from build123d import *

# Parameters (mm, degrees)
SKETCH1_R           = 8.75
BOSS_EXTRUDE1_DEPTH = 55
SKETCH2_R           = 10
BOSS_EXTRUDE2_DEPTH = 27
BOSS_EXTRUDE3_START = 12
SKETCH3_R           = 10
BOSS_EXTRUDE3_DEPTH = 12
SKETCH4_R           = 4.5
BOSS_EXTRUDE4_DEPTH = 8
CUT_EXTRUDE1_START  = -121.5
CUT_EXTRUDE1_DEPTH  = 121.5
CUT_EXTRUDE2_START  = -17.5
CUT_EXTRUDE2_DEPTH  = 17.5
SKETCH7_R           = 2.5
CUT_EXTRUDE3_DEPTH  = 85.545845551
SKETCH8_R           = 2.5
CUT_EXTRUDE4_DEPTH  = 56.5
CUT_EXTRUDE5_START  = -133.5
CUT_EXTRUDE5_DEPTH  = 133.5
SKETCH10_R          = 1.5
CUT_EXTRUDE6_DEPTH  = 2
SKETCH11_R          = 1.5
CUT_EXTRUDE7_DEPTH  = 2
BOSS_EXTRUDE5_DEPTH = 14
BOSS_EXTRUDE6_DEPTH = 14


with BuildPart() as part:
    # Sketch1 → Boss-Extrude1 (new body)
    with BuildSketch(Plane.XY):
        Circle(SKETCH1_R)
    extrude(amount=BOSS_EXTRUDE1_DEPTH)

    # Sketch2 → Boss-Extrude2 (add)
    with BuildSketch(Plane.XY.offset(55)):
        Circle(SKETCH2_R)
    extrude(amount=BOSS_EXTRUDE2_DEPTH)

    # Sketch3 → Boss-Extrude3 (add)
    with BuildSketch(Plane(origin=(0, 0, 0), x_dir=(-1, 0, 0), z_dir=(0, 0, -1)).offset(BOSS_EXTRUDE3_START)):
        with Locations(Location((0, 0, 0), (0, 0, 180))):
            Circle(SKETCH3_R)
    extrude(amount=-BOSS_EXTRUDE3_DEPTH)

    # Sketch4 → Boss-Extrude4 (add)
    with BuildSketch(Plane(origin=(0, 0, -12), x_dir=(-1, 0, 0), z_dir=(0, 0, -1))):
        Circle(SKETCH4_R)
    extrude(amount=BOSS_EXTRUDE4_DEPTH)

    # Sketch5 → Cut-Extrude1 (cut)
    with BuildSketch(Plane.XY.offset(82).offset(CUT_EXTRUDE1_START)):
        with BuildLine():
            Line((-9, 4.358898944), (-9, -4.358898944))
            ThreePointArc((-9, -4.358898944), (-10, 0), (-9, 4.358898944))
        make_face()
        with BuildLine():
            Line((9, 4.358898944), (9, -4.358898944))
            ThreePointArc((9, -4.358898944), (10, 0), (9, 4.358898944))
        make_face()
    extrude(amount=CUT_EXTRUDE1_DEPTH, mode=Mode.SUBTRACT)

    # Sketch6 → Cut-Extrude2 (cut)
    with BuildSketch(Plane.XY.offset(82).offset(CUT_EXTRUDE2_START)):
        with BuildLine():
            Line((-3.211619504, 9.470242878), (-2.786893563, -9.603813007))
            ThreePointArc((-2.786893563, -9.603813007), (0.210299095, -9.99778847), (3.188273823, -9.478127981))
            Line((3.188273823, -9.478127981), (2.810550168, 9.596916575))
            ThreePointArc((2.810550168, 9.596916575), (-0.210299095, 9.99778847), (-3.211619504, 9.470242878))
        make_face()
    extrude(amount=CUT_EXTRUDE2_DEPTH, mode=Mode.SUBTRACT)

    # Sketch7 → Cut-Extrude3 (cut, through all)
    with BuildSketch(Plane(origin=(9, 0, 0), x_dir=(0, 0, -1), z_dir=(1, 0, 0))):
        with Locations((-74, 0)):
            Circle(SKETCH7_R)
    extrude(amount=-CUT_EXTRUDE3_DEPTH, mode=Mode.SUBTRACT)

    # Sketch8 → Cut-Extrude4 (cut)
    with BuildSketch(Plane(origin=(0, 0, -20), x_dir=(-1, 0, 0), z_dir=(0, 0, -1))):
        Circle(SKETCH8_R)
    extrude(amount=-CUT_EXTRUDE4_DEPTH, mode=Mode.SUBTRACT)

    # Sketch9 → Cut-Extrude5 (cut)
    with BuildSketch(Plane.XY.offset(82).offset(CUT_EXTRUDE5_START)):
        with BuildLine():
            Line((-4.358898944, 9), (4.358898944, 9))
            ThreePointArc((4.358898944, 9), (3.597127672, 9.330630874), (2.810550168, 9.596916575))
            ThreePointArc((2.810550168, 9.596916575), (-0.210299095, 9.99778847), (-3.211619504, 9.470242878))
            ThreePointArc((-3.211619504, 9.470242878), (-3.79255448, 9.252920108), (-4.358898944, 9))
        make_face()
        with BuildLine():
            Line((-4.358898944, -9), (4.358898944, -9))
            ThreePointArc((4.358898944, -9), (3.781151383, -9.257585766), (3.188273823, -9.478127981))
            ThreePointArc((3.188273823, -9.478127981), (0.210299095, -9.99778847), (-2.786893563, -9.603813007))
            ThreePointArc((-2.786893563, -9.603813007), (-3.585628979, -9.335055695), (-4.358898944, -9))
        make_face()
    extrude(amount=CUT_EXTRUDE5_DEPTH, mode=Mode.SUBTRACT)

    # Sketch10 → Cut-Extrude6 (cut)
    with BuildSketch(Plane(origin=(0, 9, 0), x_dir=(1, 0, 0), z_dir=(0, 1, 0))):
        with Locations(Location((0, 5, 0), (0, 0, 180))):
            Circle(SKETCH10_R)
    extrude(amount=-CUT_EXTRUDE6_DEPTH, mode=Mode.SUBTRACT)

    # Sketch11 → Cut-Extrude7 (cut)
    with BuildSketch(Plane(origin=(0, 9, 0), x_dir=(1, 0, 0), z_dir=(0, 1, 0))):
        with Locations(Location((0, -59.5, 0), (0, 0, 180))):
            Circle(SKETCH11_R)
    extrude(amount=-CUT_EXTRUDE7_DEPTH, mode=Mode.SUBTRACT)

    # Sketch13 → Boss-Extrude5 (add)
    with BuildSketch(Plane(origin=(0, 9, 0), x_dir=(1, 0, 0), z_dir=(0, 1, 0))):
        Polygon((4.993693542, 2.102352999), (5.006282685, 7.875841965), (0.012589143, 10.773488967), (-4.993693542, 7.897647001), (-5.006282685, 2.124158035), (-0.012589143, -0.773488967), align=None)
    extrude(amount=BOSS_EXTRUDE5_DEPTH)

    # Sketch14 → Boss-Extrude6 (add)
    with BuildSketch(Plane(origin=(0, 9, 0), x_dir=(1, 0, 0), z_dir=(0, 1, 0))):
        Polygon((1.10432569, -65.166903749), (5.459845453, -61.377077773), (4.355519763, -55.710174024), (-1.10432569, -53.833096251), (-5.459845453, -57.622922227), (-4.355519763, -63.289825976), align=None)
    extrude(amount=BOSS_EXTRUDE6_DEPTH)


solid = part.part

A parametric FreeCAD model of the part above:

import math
import FreeCAD as App
import Part
import Sketcher

V = App.Vector


def add_polygon(sketch, points):
    """Adds a closed chain of lines whose ends are joined by coincident constraints."""
    first, n = sketch.GeometryCount, len(points)
    for a, b in zip(points, points[1:] + points[:1]):
        sketch.addGeometry(Part.LineSegment(App.Vector(*a, 0), App.Vector(*b, 0)), False)
    for i in range(n):
        sketch.addConstraint(Sketcher.Constraint("Coincident", first + i, 2, first + (i + 1) % n, 1))

doc = App.newDocument("Part")
body = doc.addObject("PartDesign::Body", "Body")

sketch1 = doc.addObject("Sketcher::SketchObject", "Sketch")
body.addObject(sketch1)
sketch1.AttachmentSupport = (doc.XY_Plane, [""])
sketch1.MapMode = "FlatFace"
sketch1.addGeometry(Part.Circle(V(0, 0, 0), V(0, 0, 1), 8.75), False)
sketch1.addConstraint([
    Sketcher.Constraint("Coincident", 0, 3, -1, 1),
    Sketcher.Constraint("Diameter", 0, 17.5),
])
pad1 = doc.addObject("PartDesign::Pad", "Pad")
body.addObject(pad1)
pad1.Profile = sketch1
pad1.Length = 55

sketch2 = doc.addObject("Sketcher::SketchObject", "Sketch001")
body.addObject(sketch2)
sketch2.AttachmentSupport = (doc.XY_Plane, [""])
sketch2.MapMode = "FlatFace"
sketch2.AttachmentOffset = App.Placement(V(0, 0, 55), App.Rotation())
sketch2.addGeometry(Part.Circle(V(0, 0, 0), V(0, 0, 1), 10), False)
sketch2.addConstraint([
    Sketcher.Constraint("Coincident", 0, 3, -1, 1),
    Sketcher.Constraint("Diameter", 0, 20.0),
])
pad2 = doc.addObject("PartDesign::Pad", "Pad001")
body.addObject(pad2)
pad2.Profile = sketch2
pad2.Length = 27

sketch3 = doc.addObject("Sketcher::SketchObject", "Sketch002")
body.addObject(sketch3)
sketch3.AttachmentSupport = (doc.XY_Plane, [""])
sketch3.MapMode = "FlatFace"
sketch3.AttachmentOffset = App.Placement(V(0, 0, -12), App.Rotation())
sketch3.addGeometry(Part.Circle(V(0, 0, 0), V(0, 0, 1), 10), False)
sketch3.addConstraint([
    Sketcher.Constraint("Coincident", 0, 3, -1, 1),
    Sketcher.Constraint("Diameter", 0, 20.0),
])
pad3 = doc.addObject("PartDesign::Pad", "Pad002")
body.addObject(pad3)
pad3.Profile = sketch3
pad3.Length = 12

sketch4 = doc.addObject("Sketcher::SketchObject", "Sketch003")
body.addObject(sketch4)
sketch4.AttachmentSupport = (doc.XY_Plane, [""])
sketch4.MapMode = "FlatFace"
sketch4.AttachmentOffset = App.Placement(V(0, 0, -12), App.Rotation())
sketch4.addGeometry(Part.Circle(V(0, 0, 0), V(0, 0, 1), 4.5), False)
sketch4.addConstraint([
    Sketcher.Constraint("Coincident", 0, 3, -1, 1),
    Sketcher.Constraint("Diameter", 0, 9.0),
])
pad4 = doc.addObject("PartDesign::Pad", "Pad003")
body.addObject(pad4)
pad4.Profile = sketch4
pad4.Length = 8
pad4.Reversed = True

sketch5 = doc.addObject("Sketcher::SketchObject", "Sketch004")
body.addObject(sketch5)
sketch5.AttachmentSupport = (doc.XY_Plane, [""])
sketch5.MapMode = "FlatFace"
sketch5.AttachmentOffset = App.Placement(V(0, 0, -39.5), App.Rotation())
sketch5.addGeometry([
    Part.LineSegment(V(-9, -4.358899, 0), V(-9, 4.358899, 0)),
    Part.ArcOfCircle(Part.Circle(V(0, 0, 0), V(0, 0, 1), 10), math.radians(154.158067), math.radians(205.841933)),
    Part.LineSegment(V(9, 4.358899, 0), V(9, -4.358899, 0)),
    Part.ArcOfCircle(Part.Circle(V(0, 0, 0), V(0, 0, 1), 10), math.radians(-25.841933), math.radians(25.841933)),
], False)
sketch5.addConstraint([
    Sketcher.Constraint("Coincident", 0, 1, 1, 2),
    Sketcher.Constraint("Coincident", 1, 1, 0, 2),
    Sketcher.Constraint("Coincident", 2, 1, 3, 2),
    Sketcher.Constraint("Coincident", 3, 1, 2, 2),
    Sketcher.Constraint("Vertical", 0),
    Sketcher.Constraint("Vertical", 2),
    Sketcher.Constraint("Coincident", 1, 3, -1, 1),
    Sketcher.Constraint("Coincident", 3, 3, -1, 1),
    Sketcher.Constraint("Equal", 1, 3),
    Sketcher.Constraint("Horizontal", 1, 1, 2, 1),
    Sketcher.Constraint("Radius", 1, 10.0),
    Sketcher.Constraint("DistanceX", 0, 1, -1, 1, 9.0),
])
pocket1 = doc.addObject("PartDesign::Pocket", "Pocket")
body.addObject(pocket1)
pocket1.Profile = sketch5
pocket1.Length = 121.5
pocket1.Reversed = True

sketch6 = doc.addObject("Sketcher::SketchObject", "Sketch005")
body.addObject(sketch6)
sketch6.AttachmentSupport = (doc.XY_Plane, [""])
sketch6.MapMode = "FlatFace"
sketch6.AttachmentOffset = App.Placement(V(0, 0, 64.5), App.Rotation())
sketch6.addGeometry([
    Part.LineSegment(V(-3.21162, 9.470243, 0), V(-2.786894, -9.603813, 0)),
    Part.ArcOfCircle(Part.Circle(V(0, 0, 0), V(0, 0, 1), 10), math.radians(-106.181997), math.radians(-71.407975)),
    Part.LineSegment(V(3.188274, -9.478128, 0), V(2.81055, 9.596917, 0)),
    Part.ArcOfCircle(Part.Circle(V(0, 0, 0), V(0, 0, 1), 10), math.radians(73.676819), math.radians(108.733209)),
], False)
sketch6.addConstraint([
    Sketcher.Constraint("Coincident", 0, 2, 1, 1),
    Sketcher.Constraint("Coincident", 1, 2, 2, 1),
    Sketcher.Constraint("Coincident", 2, 2, 3, 1),
    Sketcher.Constraint("Coincident", 3, 2, 0, 1),
    Sketcher.Constraint("Coincident", 1, 3, -1, 1),
    Sketcher.Constraint("Coincident", 3, 3, -1, 1),
    Sketcher.Constraint("Equal", 1, 3),
    Sketcher.Constraint("Equal", 0, 2),
    Sketcher.Constraint("Radius", 1, 10.0),
    Sketcher.Constraint("DistanceX", -1, 1, 2, 2, 2.81055),
    Sketcher.Constraint("DistanceX", 3, 2, -1, 1, 3.21162),
    Sketcher.Constraint("DistanceY", 0, 2, 2, 2, 19.20073),
])
pocket2 = doc.addObject("PartDesign::Pocket", "Pocket001")
body.addObject(pocket2)
pocket2.Profile = sketch6
pocket2.Length = 17.5
pocket2.Reversed = True

sketch7 = doc.addObject("Sketcher::SketchObject", "Sketch006")
body.addObject(sketch7)
sketch7.AttachmentSupport = (doc.YZ_Plane, [""])
sketch7.MapMode = "FlatFace"
sketch7.AttachmentOffset = App.Placement(V(0, 0, 9), App.Rotation())
sketch7.addGeometry(Part.Circle(V(0, 74, 0), V(0, 0, 1), 2.5), False)
sketch7.addConstraint([
    Sketcher.Constraint("PointOnObject", 0, 3, -2),
    Sketcher.Constraint("Diameter", 0, 5.0),
    Sketcher.Constraint("DistanceY", -1, 1, 0, 3, 74.0),
])
pocket3 = doc.addObject("PartDesign::Pocket", "Pocket002")
body.addObject(pocket3)
pocket3.Profile = sketch7
pocket3.Type = "ThroughAll"

sketch8 = doc.addObject("Sketcher::SketchObject", "Sketch007")
body.addObject(sketch8)
sketch8.AttachmentSupport = (doc.XY_Plane, [""])
sketch8.MapMode = "FlatFace"
sketch8.AttachmentOffset = App.Placement(V(0, 0, -20), App.Rotation())
sketch8.addGeometry(Part.Circle(V(0, 0, 0), V(0, 0, 1), 2.5), False)
sketch8.addConstraint([
    Sketcher.Constraint("Coincident", 0, 3, -1, 1),
    Sketcher.Constraint("Diameter", 0, 5.0),
])
pocket4 = doc.addObject("PartDesign::Pocket", "Pocket003")
body.addObject(pocket4)
pocket4.Profile = sketch8
pocket4.Length = 56.5
pocket4.Reversed = True

sketch9 = doc.addObject("Sketcher::SketchObject", "Sketch008")
body.addObject(sketch9)
sketch9.AttachmentSupport = (doc.XY_Plane, [""])
sketch9.MapMode = "FlatFace"
sketch9.AttachmentOffset = App.Placement(V(0, 0, -51.5), App.Rotation())
sketch9.addGeometry([
    Part.LineSegment(V(-4.358899, 9, 0), V(4.358899, 9, 0)),
    Part.ArcOfCircle(Part.Circle(V(0, 0, 0), V(0, 0, 1), 10), math.radians(64.158067), math.radians(73.676819)),
    Part.ArcOfCircle(Part.Circle(V(0, 0, 0), V(0, 0, 1), 10), math.radians(73.676819), math.radians(108.733209)),
    Part.ArcOfCircle(Part.Circle(V(0, 0, 0), V(0, 0, 1), 10), math.radians(108.733209), math.radians(115.841933)),
    Part.LineSegment(V(4.358899, -9, 0), V(-4.358899, -9, 0)),
    Part.ArcOfCircle(Part.Circle(V(0, 0, 0), V(0, 0, 1), 10), math.radians(-115.841933), math.radians(-106.181997)),
    Part.ArcOfCircle(Part.Circle(V(0, 0, 0), V(0, 0, 1), 10), math.radians(-106.181997), math.radians(-71.407975)),
    Part.ArcOfCircle(Part.Circle(V(0, 0, 0), V(0, 0, 1), 10), math.radians(-71.407975), math.radians(-64.158067)),
], False)
sketch9.addConstraint([
    Sketcher.Constraint("Coincident", 0, 2, 1, 1),
    Sketcher.Constraint("Tangent", 1, 2, 2, 1),
    Sketcher.Constraint("Tangent", 2, 2, 3, 1),
    Sketcher.Constraint("Coincident", 3, 2, 0, 1),
    Sketcher.Constraint("Coincident", 4, 2, 5, 1),
    Sketcher.Constraint("Tangent", 5, 2, 6, 1),
    Sketcher.Constraint("Tangent", 6, 2, 7, 1),
    Sketcher.Constraint("Coincident", 7, 2, 4, 1),
    Sketcher.Constraint("Horizontal", 0),
    Sketcher.Constraint("Horizontal", 4),
    Sketcher.Constraint("Coincident", 1, 3, -1, 1),
    Sketcher.Constraint("Coincident", 3, 3, -1, 1),
    Sketcher.Constraint("Coincident", 5, 3, -1, 1),
    Sketcher.Constraint("Coincident", 7, 3, -1, 1),
    Sketcher.Constraint("Equal", 3, 5),
    Sketcher.Constraint("Vertical", 3, 2, 4, 2),
    Sketcher.Constraint("Radius", 1, 10.0),
    Sketcher.Constraint("DistanceY", -1, 1, 0, 2, 9.0),
    Sketcher.Constraint("DistanceX", -1, 1, 1, 2, 2.81055),
    Sketcher.Constraint("DistanceX", 2, 2, -1, 1, 3.21162),
    Sketcher.Constraint("DistanceX", 5, 2, -1, 1, 2.786894),
    Sketcher.Constraint("DistanceX", -1, 1, 6, 2, 3.188274),
])
pocket5 = doc.addObject("PartDesign::Pocket", "Pocket004")
body.addObject(pocket5)
pocket5.Profile = sketch9
pocket5.Length = 133.5
pocket5.Reversed = True

sketch10 = doc.addObject("Sketcher::SketchObject", "Sketch009")
body.addObject(sketch10)
sketch10.AttachmentSupport = (doc.XZ_Plane, [""])
sketch10.MapMode = "FlatFace"
sketch10.AttachmentOffset = App.Placement(V(0, 0, -9), App.Rotation())
sketch10.addGeometry(Part.Circle(V(0, -5, 0), V(0, 0, 1), 1.5), False)
sketch10.addConstraint([
    Sketcher.Constraint("PointOnObject", 0, 3, -2),
    Sketcher.Constraint("Diameter", 0, 3.0),
    Sketcher.Constraint("DistanceY", 0, 3, -1, 1, 5.0),
])
pocket6 = doc.addObject("PartDesign::Pocket", "Pocket005")
body.addObject(pocket6)
pocket6.Profile = sketch10
pocket6.Length = 2
pocket6.Reversed = True

sketch11 = doc.addObject("Sketcher::SketchObject", "Sketch010")
body.addObject(sketch11)
sketch11.AttachmentSupport = (doc.XZ_Plane, [""])
sketch11.MapMode = "FlatFace"
sketch11.AttachmentOffset = App.Placement(V(0, 0, -9), App.Rotation())
sketch11.addGeometry(Part.Circle(V(0, 59.5, 0), V(0, 0, 1), 1.5), False)
sketch11.addConstraint([
    Sketcher.Constraint("PointOnObject", 0, 3, -2),
    Sketcher.Constraint("Diameter", 0, 3.0),
    Sketcher.Constraint("DistanceY", -1, 1, 0, 3, 59.5),
])
pocket7 = doc.addObject("PartDesign::Pocket", "Pocket006")
body.addObject(pocket7)
pocket7.Profile = sketch11
pocket7.Length = 2
pocket7.Reversed = True

sketch12 = doc.addObject("Sketcher::SketchObject", "Sketch011")
body.addObject(sketch12)
sketch12.AttachmentSupport = (doc.XZ_Plane, [""])
sketch12.MapMode = "FlatFace"
sketch12.AttachmentOffset = App.Placement(V(0, 0, -9), App.Rotation())
add_polygon(sketch12, [(4.993694, -2.102353), (5.006283, -7.875842), (0.012589, -10.773489), (-4.993694, -7.897647), (-5.006283, -2.124158), (-0.012589, 0.773489)])
sketch12.addConstraint([
    Sketcher.Constraint("Parallel", 0, 3),
    Sketcher.Constraint("Parallel", 1, 4),
    Sketcher.Constraint("Parallel", 2, 5),
    Sketcher.Constraint("Equal", 0, 1),
    Sketcher.Constraint("Equal", 1, 2),
    Sketcher.Constraint("Equal", 2, 3),
    Sketcher.Constraint("DistanceY", 0, 2, -1, 1, 7.875842),
    Sketcher.Constraint("DistanceX", -1, 1, 1, 2, 0.012589),
    Sketcher.Constraint("DistanceY", 1, 2, -1, 1, 10.773489),
    Sketcher.Constraint("DistanceY", 3, 2, -1, 1, 2.124158),
    Sketcher.Constraint("DistanceX", 4, 2, -1, 1, 0.012589),
    Sketcher.Constraint("DistanceY", 1, 2, 2, 2, 2.875842),
])
pad5 = doc.addObject("PartDesign::Pad", "Pad004")
body.addObject(pad5)
pad5.Profile = sketch12
pad5.Length = 14
pad5.Reversed = True

sketch13 = doc.addObject("Sketcher::SketchObject", "Sketch012")
body.addObject(sketch13)
sketch13.AttachmentSupport = (doc.XZ_Plane, [""])
sketch13.MapMode = "FlatFace"
sketch13.AttachmentOffset = App.Placement(V(0, 0, -9), App.Rotation())
add_polygon(sketch13, [(1.104326, 65.166904), (5.459845, 61.377078), (4.35552, 55.710174), (-1.104326, 53.833096), (-5.459845, 57.622922), (-4.35552, 63.289826)])
sketch13.addConstraint([
    Sketcher.Constraint("Parallel", 0, 3),
    Sketcher.Constraint("Parallel", 1, 4),
    Sketcher.Constraint("Parallel", 2, 5),
    Sketcher.Constraint("Equal", 0, 1),
    Sketcher.Constraint("Equal", 1, 2),
    Sketcher.Constraint("Equal", 2, 3),
    Sketcher.Constraint("DistanceX", -1, 1, 1, 2, 4.35552),
    Sketcher.Constraint("DistanceX", 4, 2, -1, 1, 4.35552),
    Sketcher.Constraint("DistanceX", 2, 2, 0, 2, 6.564171),
    Sketcher.Constraint("DistanceY", 2, 2, 0, 2, 7.543982),
    Sketcher.Constraint("DistanceX", 3, 2, 2, 2, 4.35552),
    Sketcher.Constraint("DistanceY", -1, 1, 0, 2, 61.377078),
])
pad6 = doc.addObject("PartDesign::Pad", "Pad005")
body.addObject(pad6)
pad6.Profile = sketch13
pad6.Length = 14
pad6.Reversed = True

doc.recompute()
